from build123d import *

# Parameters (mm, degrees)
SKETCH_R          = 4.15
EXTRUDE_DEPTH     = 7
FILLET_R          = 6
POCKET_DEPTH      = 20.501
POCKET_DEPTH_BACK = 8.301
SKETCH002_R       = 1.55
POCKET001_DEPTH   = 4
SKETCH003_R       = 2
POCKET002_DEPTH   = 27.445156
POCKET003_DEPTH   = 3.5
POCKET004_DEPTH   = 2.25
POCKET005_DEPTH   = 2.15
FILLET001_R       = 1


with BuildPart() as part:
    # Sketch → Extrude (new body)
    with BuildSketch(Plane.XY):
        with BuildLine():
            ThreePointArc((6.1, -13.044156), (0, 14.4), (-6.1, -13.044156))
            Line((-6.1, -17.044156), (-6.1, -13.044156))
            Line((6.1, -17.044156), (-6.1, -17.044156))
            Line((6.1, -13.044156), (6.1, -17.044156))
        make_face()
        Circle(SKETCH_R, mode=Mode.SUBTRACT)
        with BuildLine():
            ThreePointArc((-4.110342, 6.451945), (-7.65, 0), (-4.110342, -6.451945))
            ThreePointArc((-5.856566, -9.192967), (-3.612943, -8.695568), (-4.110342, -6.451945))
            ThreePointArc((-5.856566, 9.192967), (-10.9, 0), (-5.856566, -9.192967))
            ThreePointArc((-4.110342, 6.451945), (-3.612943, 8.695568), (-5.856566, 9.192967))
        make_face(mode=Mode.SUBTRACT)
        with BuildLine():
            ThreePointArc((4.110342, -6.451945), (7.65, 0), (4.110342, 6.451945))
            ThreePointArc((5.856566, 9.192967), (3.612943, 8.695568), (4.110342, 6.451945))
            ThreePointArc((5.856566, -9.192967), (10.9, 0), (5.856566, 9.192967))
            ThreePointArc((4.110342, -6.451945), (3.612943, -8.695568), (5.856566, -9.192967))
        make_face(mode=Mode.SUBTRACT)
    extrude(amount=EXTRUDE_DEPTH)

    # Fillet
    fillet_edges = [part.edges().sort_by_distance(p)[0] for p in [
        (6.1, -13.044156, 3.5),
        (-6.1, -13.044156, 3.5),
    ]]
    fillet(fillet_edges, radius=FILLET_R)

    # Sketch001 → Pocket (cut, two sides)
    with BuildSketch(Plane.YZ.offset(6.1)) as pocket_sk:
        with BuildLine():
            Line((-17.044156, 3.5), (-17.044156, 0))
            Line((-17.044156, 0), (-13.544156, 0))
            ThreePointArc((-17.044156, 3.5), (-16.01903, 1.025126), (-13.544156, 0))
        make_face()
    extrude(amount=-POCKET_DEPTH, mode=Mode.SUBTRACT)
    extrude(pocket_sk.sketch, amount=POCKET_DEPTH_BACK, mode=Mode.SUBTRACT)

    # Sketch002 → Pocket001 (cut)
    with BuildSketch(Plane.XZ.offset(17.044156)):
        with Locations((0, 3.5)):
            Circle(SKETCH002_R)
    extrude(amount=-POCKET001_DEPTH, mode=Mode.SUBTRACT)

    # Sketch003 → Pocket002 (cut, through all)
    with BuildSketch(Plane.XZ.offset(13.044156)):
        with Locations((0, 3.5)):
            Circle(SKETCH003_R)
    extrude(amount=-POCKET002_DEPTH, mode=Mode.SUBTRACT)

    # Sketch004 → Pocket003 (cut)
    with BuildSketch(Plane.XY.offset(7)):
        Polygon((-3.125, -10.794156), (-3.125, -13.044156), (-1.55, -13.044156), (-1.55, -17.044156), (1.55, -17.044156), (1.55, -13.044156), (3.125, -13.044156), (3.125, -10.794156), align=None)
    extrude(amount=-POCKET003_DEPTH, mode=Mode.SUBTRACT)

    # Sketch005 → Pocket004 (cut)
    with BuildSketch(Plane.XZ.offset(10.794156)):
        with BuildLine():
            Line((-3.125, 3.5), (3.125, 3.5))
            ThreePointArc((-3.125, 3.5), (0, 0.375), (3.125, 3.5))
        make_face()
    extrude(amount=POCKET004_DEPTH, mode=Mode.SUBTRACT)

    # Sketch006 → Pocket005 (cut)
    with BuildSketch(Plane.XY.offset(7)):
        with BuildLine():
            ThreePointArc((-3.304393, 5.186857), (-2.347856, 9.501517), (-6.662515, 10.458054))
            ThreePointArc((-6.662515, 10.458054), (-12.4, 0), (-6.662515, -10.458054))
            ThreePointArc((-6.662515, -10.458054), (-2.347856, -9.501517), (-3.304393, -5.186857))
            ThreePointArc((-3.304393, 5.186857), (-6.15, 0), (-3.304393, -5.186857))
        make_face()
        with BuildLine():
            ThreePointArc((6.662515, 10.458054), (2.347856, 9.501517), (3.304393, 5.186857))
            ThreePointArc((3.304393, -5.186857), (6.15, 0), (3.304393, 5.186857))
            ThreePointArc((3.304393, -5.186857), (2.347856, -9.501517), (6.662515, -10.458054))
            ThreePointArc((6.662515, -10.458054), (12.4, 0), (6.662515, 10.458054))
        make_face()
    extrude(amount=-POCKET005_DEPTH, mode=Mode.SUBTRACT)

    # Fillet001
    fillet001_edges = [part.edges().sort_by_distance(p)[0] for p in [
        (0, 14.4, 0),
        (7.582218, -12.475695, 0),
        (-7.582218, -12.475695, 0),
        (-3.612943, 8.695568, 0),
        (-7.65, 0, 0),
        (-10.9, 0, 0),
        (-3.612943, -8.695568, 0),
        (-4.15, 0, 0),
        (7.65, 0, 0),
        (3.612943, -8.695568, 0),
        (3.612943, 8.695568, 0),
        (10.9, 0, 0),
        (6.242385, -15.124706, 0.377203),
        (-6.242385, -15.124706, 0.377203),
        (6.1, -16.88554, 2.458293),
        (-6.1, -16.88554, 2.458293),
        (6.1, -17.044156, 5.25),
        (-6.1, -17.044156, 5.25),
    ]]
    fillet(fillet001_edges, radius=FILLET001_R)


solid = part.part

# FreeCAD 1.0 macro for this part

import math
import FreeCAD as App
import Part
import Sketcher
from FreeCAD import Vector
Q = App.Units.Quantity


def edges_at(feature, points):
    """Names of the edges that pass closest to the given points."""
    edges = feature.Shape.Edges
    near = lambda p: min(range(len(edges)), key=lambda i: edges[i].distToShape(Part.Vertex(*p))[0])
    return sorted({f"Edge{near(p) + 1}" for p in points})


def add_polygon(sketch, points):
    """Adds a closed chain of lines whose ends are joined by coincident constraints."""
    first, n = sketch.GeometryCount, len(points)
    for a, b in zip(points, points[1:] + points[:1]):
        sketch.addGeometry(Part.LineSegment(App.Vector(*a, 0), App.Vector(*b, 0)), False)
    for i in range(n):
        sketch.addConstraint(Sketcher.Constraint("Coincident", first + i, 2, first + (i + 1) % n, 1))

doc = App.newDocument("Part")
body = doc.addObject("PartDesign::Body", "Body")

# Sketch on XY plane
sketch1 = doc.addObject("Sketcher::SketchObject", "Sketch")
body.addObject(sketch1)
sketch1.AttachmentSupport = (doc.XY_Plane, [""])
sketch1.MapMode = "FlatFace"
sketch1.addGeometry([
    Part.ArcOfCircle(Part.Circle(Vector(0, 0, 0), Vector(0, 0, 1), 14.4), math.radians(-65), math.radians(245)),  # 0
    Part.LineSegment(Vector(-6.1, -13, 0), Vector(-6.1, -17, 0)),  # 1
    Part.LineSegment(Vector(-6.1, -17, 0), Vector(6.1, -17, 0)),  # 2
    Part.LineSegment(Vector(6.1, -17, 0), Vector(6.1, -13, 0)),  # 3
    Part.ArcOfCircle(Part.Circle(Vector(-5, 7.8, 0), Vector(0, 0, 1), 1.6), math.radians(-57), math.radians(123)),  # 4
    Part.ArcOfCircle(Part.Circle(Vector(0, 0, 0), Vector(0, 0, 1), 7.7), math.radians(123), math.radians(237)),  # 5
    Part.ArcOfCircle(Part.Circle(Vector(-5, -7.8, 0), Vector(0, 0, 1), 1.6), math.radians(-123), math.radians(57)),  # 6
    Part.ArcOfCircle(Part.Circle(Vector(0, 0, 0), Vector(0, 0, 1), 10.9), math.radians(123), math.radians(237)),  # 7
    Part.Circle(Vector(0, 0, 0), Vector(0, 0, 1), 4.2),  # 8
    Part.ArcOfCircle(Part.Circle(Vector(5, -7.8, 0), Vector(0, 0, 1), 1.6), math.radians(123), math.radians(303)),  # 9
    Part.ArcOfCircle(Part.Circle(Vector(0, 0, 0), Vector(0, 0, 1), 7.7), math.radians(-57), math.radians(57)),  # 10
    Part.ArcOfCircle(Part.Circle(Vector(5, 7.8, 0), Vector(0, 0, 1), 1.6), math.radians(57), math.radians(237)),  # 11
    Part.ArcOfCircle(Part.Circle(Vector(0, 0, 0), Vector(0, 0, 1), 10.9), math.radians(-57), math.radians(57)),  # 12
], False)
sketch1.addConstraint([
    Sketcher.Constraint("Coincident", 0, 2, 1, 1),
    Sketcher.Constraint("Coincident", 1, 2, 2, 1),
    Sketcher.Constraint("Coincident", 2, 2, 3, 1),
    Sketcher.Constraint("Coincident", 3, 2, 0, 1),
    Sketcher.Constraint("Tangent", 4, 1, 5, 1),
    Sketcher.Constraint("Tangent", 5, 2, 6, 2),
    Sketcher.Constraint("Tangent", 6, 1, 7, 2),
    Sketcher.Constraint("Tangent", 7, 1, 4, 2),
    Sketcher.Constraint("Tangent", 9, 1, 10, 1),
    Sketcher.Constraint("Tangent", 10, 2, 11, 2),
    Sketcher.Constraint("Tangent", 11, 1, 12, 2),
    Sketcher.Constraint("Tangent", 12, 1, 9, 2),
    Sketcher.Constraint("Vertical", 1),
    Sketcher.Constraint("Horizontal", 2),
    Sketcher.Constraint("Vertical", 3),
    Sketcher.Constraint("Coincident", 0, 3, -1, 1),
    Sketcher.Constraint("Coincident", 5, 3, -1, 1),
    Sketcher.Constraint("Coincident", 7, 3, -1, 1),
    Sketcher.Constraint("Coincident", 8, 3, -1, 1),
    Sketcher.Constraint("Coincident", 10, 3, -1, 1),
    Sketcher.Constraint("Coincident", 12, 3, -1, 1),
    Sketcher.Constraint("Equal", 6, 9),
    Sketcher.Constraint("Equal", 5, 10),
    Sketcher.Constraint("Horizontal", 6, 3, 9, 3),
    Sketcher.Constraint("Horizontal", 4, 3, 11, 3),
    Sketcher.Constraint("Horizontal", 0, 2, 3, 2),
    Sketcher.Constraint("Vertical", 4, 3, 6, 3),
    Sketcher.Constraint("Diameter", 8, Q("8.3 mm")),
    Sketcher.Constraint("Radius", 0, Q("14.4 mm")),
    Sketcher.Constraint("Radius", 7, Q("10.900001 mm")),
    Sketcher.Constraint("DistanceY", 1, 2, 1, 1, Q("4 mm")),
    Sketcher.Constraint("Radius", 5, Q("7.650001 mm")),
    Sketcher.Constraint("DistanceX", 2, 1, 2, 2, Q("12.2 mm")),
    Sketcher.Constraint("DistanceY", 0, 2, 6, 3, Q("5.2217 mm")),
])
pad1 = doc.addObject("PartDesign::Pad", "Pad")
body.addObject(pad1)
pad1.Profile = sketch1
pad1.Length = 7
doc.recompute()

fillet = doc.addObject("PartDesign::Fillet", "Fillet")
body.addObject(fillet)
fillet.Base = (pad1, edges_at(pad1, [(6.1, -13.044, 3.5), (-6.1, -13.044, 3.5)]))
fillet.Radius = 6

# Sketch on YZ plane
sketch2 = doc.addObject("Sketcher::SketchObject", "Sketch001")
body.addObject(sketch2)
sketch2.AttachmentSupport = (doc.YZ_Plane, [""])
sketch2.MapMode = "FlatFace"
sketch2.AttachmentOffset = App.Placement(Vector(0, 0, 6.1), App.Rotation())
sketch2.addGeometry([
    Part.LineSegment(Vector(-17, 3.5, 0), Vector(-17, 0, 0)),
    Part.LineSegment(Vector(-17, 0, 0), Vector(-13.5, 0, 0)),
    Part.ArcOfCircle(Part.Circle(Vector(-13.5, 3.5, 0), Vector(0, 0, 1), 3.5), math.radians(180), math.radians(270)),
], False)
sketch2.addConstraint([
    Sketcher.Constraint("Coincident", 0, 2, 1, 1),
    Sketcher.Constraint("Tangent", 1, 2, 2, 2),
    Sketcher.Constraint("Tangent", 2, 1, 0, 1),
    Sketcher.Constraint("Vertical", 0),
    Sketcher.Constraint("Horizontal", 1),
    Sketcher.Constraint("PointOnObject", 0, 2, -1),
    Sketcher.Constraint("Radius", 2, Q("3.499999 mm")),
    Sketcher.Constraint("DistanceX", 2, 3, -1, 1, Q("13.544157 mm")),
])
pocket1 = doc.addObject("PartDesign::Pocket", "Pocket")
body.addObject(pocket1)
pocket1.Profile = sketch2
pocket1.Type = "ThroughAll"
pocket1.Midplane = True

# Sketch on XZ plane
sketch3 = doc.addObject("Sketcher::SketchObject", "Sketch002")
body.addObject(sketch3)
sketch3.AttachmentSupport = (doc.XZ_Plane, [""])
sketch3.MapMode = "FlatFace"
sketch3.AttachmentOffset = App.Placement(Vector(0, 0, 17.044156), App.Rotation())
sketch3.addGeometry(Part.Circle(Vector(0, 3.5, 0), Vector(0, 0, 1), 1.6), False)
sketch3.addConstraint([
    Sketcher.Constraint("PointOnObject", 0, 3, -2),
    Sketcher.Constraint("Diameter", 0, Q("3.1 mm")),
    Sketcher.Constraint("DistanceY", -1, 1, 0, 3, Q("3.5 mm")),
])
pocket2 = doc.addObject("PartDesign::Pocket", "Pocket001")
body.addObject(pocket2)
pocket2.Profile = sketch3
pocket2.Length = 4

# Sketch on XZ plane
sketch4 = doc.addObject("Sketcher::SketchObject", "Sketch003")
body.addObject(sketch4)
sketch4.AttachmentSupport = (doc.XZ_Plane, [""])
sketch4.MapMode = "FlatFace"
sketch4.AttachmentOffset = App.Placement(Vector(0, 0, 13.044156), App.Rotation())
sketch4.addGeometry(Part.Circle(Vector(0, 3.5, 0), Vector(0, 0, 1), 2), False)
sketch4.addConstraint([
    Sketcher.Constraint("PointOnObject", 0, 3, -2),
    Sketcher.Constraint("Diameter", 0, Q("4 mm")),
    Sketcher.Constraint("DistanceY", -1, 1, 0, 3, Q("3.5 mm")),
])
pocket3 = doc.addObject("PartDesign::Pocket", "Pocket002")
body.addObject(pocket3)
pocket3.Profile = sketch4
pocket3.Type = "ThroughAll"

# Sketch on XY plane
sketch5 = doc.addObject("Sketcher::SketchObject", "Sketch004")
body.addObject(sketch5)
sketch5.AttachmentSupport = (doc.XY_Plane, [""])
sketch5.MapMode = "FlatFace"
sketch5.AttachmentOffset = App.Placement(Vector(0, 0, 7), App.Rotation())
add_polygon(sketch5, [(-3.1, -10.8), (-3.1, -13), (-1.6, -13), (-1.6, -17), (1.6, -17), (1.6, -13), (3.1, -13), (3.1, -10.8)])  # lines 0-7
sketch5.addConstraint([
    Sketcher.Constraint("Vertical", 0),
    Sketcher.Constraint("Horizontal", 1),
    Sketcher.Constraint("Vertical", 2),
    Sketcher.Constraint("Horizontal", 3),
    Sketcher.Constraint("Vertical", 4),
    Sketcher.Constraint("Horizontal", 5),
    Sketcher.Constraint("Vertical", 6),
    Sketcher.Constraint("Horizontal", 7),
    Sketcher.Constraint("Symmetric", 1, 2, 4, 2, -2),
    Sketcher.Constraint("Equal", 1, 5),
    Sketcher.Constraint("DistanceY", 2, 2, 2, 1, Q("4 mm")),
    Sketcher.Constraint("DistanceX", 3, 1, 3, 2, Q("3.1 mm")),
    Sketcher.Constraint("DistanceX", 7, 2, 7, 1, Q("6.25 mm")),
    Sketcher.Constraint("DistanceY", 0, 2, 0, 1, Q("2.25 mm")),
    Sketcher.Constraint("DistanceY", 0, 2, -1, 1, Q("13.044156 mm")),
])
pocket4 = doc.addObject("PartDesign::Pocket", "Pocket003")
body.addObject(pocket4)
pocket4.Profile = sketch5
pocket4.Length = 3.5

# Sketch on XZ plane
sketch6 = doc.addObject("Sketcher::SketchObject", "Sketch005")
body.addObject(sketch6)
sketch6.AttachmentSupport = (doc.XZ_Plane, [""])
sketch6.MapMode = "FlatFace"
sketch6.AttachmentOffset = App.Placement(Vector(0, 0, 10.794156), App.Rotation())
sketch6.addGeometry([
    Part.LineSegment(Vector(3.1, 3.5, 0), Vector(-3.1, 3.5, 0)),
    Part.ArcOfCircle(Part.Circle(Vector(0, 3.5, 0), Vector(0, 0, 1), 3.1), math.radians(180), math.radians(360)),
], False)
sketch6.addConstraint([
    Sketcher.Constraint("Coincident", 0, 1, 1, 2),
    Sketcher.Constraint("Coincident", 1, 1, 0, 2),
    Sketcher.Constraint("Horizontal", 0),
    Sketcher.Constraint("PointOnObject", 1, 3, -2),
    Sketcher.Constraint("Horizontal", 1, 3, 0, 1),
    Sketcher.Constraint("Radius", 1, Q("3.125 mm")),
    Sketcher.Constraint("DistanceY", -1, 1, 1, 3, Q("3.5 mm")),
])
pocket5 = doc.addObject("PartDesign::Pocket", "Pocket004")
body.addObject(pocket5)
pocket5.Profile = sketch6
pocket5.Length = 2.25
pocket5.Reversed = True

# Sketch on XY plane
sketch7 = doc.addObject("Sketcher::SketchObject", "Sketch006")
body.addObject(sketch7)
sketch7.AttachmentSupport = (doc.XY_Plane, [""])
sketch7.MapMode = "FlatFace"
sketch7.AttachmentOffset = App.Placement(Vector(0, 0, 7), App.Rotation())
sketch7.addGeometry([
    Part.ArcOfCircle(Part.Circle(Vector(-5, 7.8, 0), Vector(0, 0, 1), 3.1), math.radians(-58), math.radians(122)),  # 0
    Part.ArcOfCircle(Part.Circle(Vector(0, 0, 0), Vector(0, 0, 1), 12.4), math.radians(122), math.radians(238)),  # 1
    Part.ArcOfCircle(Part.Circle(Vector(-5, -7.8, 0), Vector(0, 0, 1), 3.1), math.radians(-122), math.radians(58)),  # 2
    Part.ArcOfCircle(Part.Circle(Vector(0, 0, 0), Vector(0, 0, 1), 6.1), math.radians(123), math.radians(237)),  # 3
    Part.ArcOfCircle(Part.Circle(Vector(5, 7.8, 0), Vector(0, 0, 1), 3.1), math.radians(58), math.radians(238)),  # 4
    Part.ArcOfCircle(Part.Circle(Vector(0, 0, 0), Vector(0, 0, 1), 6.1), math.radians(-57), math.radians(57)),  # 5
    Part.ArcOfCircle(Part.Circle(Vector(5, -7.8, 0), Vector(0, 0, 1), 3.1), math.radians(122), math.radians(302)),  # 6
    Part.ArcOfCircle(Part.Circle(Vector(0, 0, 0), Vector(0, 0, 1), 12.4), math.radians(-58), math.radians(58)),  # 7
], False)
sketch7.addConstraint([
    Sketcher.Constraint("Tangent", 0, 2, 1, 1),
    Sketcher.Constraint("Tangent", 1, 2, 2, 1),
    Sketcher.Constraint("Tangent", 2, 2, 3, 2),
    Sketcher.Constraint("Tangent", 3, 1, 0, 1),
    Sketcher.Constraint("Tangent", 4, 2, 5, 2),
    Sketcher.Constraint("Tangent", 5, 1, 6, 1),
    Sketcher.Constraint("Tangent", 6, 2, 7, 1),
    Sketcher.Constraint("Tangent", 7, 2, 4, 1),
    Sketcher.Constraint("Coincident", 1, 3, -1, 1),
    Sketcher.Constraint("Coincident", 3, 3, -1, 1),
    Sketcher.Constraint("Coincident", 5, 3, -1, 1),
    Sketcher.Constraint("Coincident", 7, 3, -1, 1),
    Sketcher.Constraint("Equal", 2, 4),
    Sketcher.Constraint("Equal", 3, 5),
    Sketcher.Constraint("Horizontal", 0, 3, 4, 3),
    Sketcher.Constraint("Horizontal", 2, 3, 6, 3),
    Sketcher.Constraint("Vertical", 0, 3, 2, 3),
    Sketcher.Constraint("Radius", 1, Q("12.4 mm")),
    Sketcher.Constraint("Radius", 3, Q("6.15 mm")),
    Sketcher.Constraint("DistanceY", 0, 3, 0, 2, Q("2.635599 mm")),
])
pocket6 = doc.addObject("PartDesign::Pocket", "Pocket005")
body.addObject(pocket6)
pocket6.Profile = sketch7
pocket6.Length = 2.15
doc.recompute()

fillet2 = doc.addObject("PartDesign::Fillet", "Fillet001")
body.addObject(fillet2)
fillet2.Base = (pocket6, edges_at(pocket6, [
    (0, 14.4, 0),
    (7.582, -12.476, 0),
    (-7.582, -12.476, 0),
    (-3.613, 8.696, 0),
    (-7.65, 0, 0),
    (-10.9, 0, 0),
    (-3.613, -8.696, 0),
    (-4.15, 0, 0),
    (7.65, 0, 0),
    (3.613, -8.696, 0),
    (3.613, 8.696, 0),
    (10.9, 0, 0),
    (6.242, -15.125, 0.377),
    (-6.242, -15.125, 0.377),
    (6.1, -16.886, 2.458),
    (-6.1, -16.886, 2.458),
    (6.1, -17.044, 5.25),
    (-6.1, -17.044, 5.25),
]))
fillet2.Radius = 1

doc.recompute()
